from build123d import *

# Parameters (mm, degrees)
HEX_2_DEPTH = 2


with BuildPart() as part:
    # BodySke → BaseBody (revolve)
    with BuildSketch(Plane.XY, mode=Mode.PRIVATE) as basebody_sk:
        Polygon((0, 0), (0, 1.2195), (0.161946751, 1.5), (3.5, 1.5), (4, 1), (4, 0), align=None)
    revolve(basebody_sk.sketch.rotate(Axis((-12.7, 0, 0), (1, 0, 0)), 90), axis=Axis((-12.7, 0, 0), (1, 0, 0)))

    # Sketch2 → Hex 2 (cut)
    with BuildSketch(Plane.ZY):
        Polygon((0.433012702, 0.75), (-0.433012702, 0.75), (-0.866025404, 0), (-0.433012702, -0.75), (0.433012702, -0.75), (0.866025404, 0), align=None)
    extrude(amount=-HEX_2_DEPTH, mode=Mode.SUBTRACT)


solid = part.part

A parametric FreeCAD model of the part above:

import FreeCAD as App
import Part
import Sketcher

V = App.Vector
Q = App.Units.Quantity


def add_polygon(sketch, points):
    """Adds a closed chain of lines whose ends are joined by coincident constraints."""
    first, n = sketch.GeometryCount, len(points)
    for a, b in zip(points, points[1:] + points[:1]):
        sketch.addGeometry(Part.LineSegment(App.Vector(*a, 0), App.Vector(*b, 0)), False)
    for i in range(n):
        sketch.addConstraint(Sketcher.Constraint("Coincident", first + i, 2, first + (i + 1) % n, 1))

doc = App.newDocument("Part")
body = doc.addObject("PartDesign::Body", "Body")

sketch1 = body.newObject("Sketcher::SketchObject", "Sketch")
sketch1.AttachmentSupport = (doc.getObject("XY_Plane"), [""])
sketch1.MapMode = "FlatFace"
add_polygon(sketch1, [(0, 1.22), (0, 0), (4, 0), (4, 1), (3.5, 1.5), (0.16, 1.5)])
sketch1.addConstraint([
    Sketcher.Constraint("Vertical", 0),
    Sketcher.Constraint("Horizontal", 1),
    Sketcher.Constraint("Vertical", 2),
    Sketcher.Constraint("Horizontal", 4),
    Sketcher.Constraint("Coincident", 0, 2, -1, 1),
    Sketcher.Constraint("DistanceX", 1, 1, 1, 2, 4.0),
    Sketcher.Constraint("DistanceY", 2, 1, 2, 2, 1.0),
    Sketcher.Constraint("Angle", 3, Q("135 deg")),
    Sketcher.Constraint("Angle", 5, Q("-120 deg")),
    Sketcher.Constraint("DistanceX", -1, 1, 3, 2, 3.5),
    Sketcher.Constraint("DistanceY", 0, 2, 0, 1, 1.2195),
])
revolution = body.newObject("PartDesign::Revolution", "Revolution")
revolution.Profile = sketch1
revolution.ReferenceAxis = (sketch1, ["H_Axis"])
revolution.Angle = 360

sketch2 = body.newObject("Sketcher::SketchObject", "Sketch001")
sketch2.AttachmentSupport = (doc.getObject("YZ_Plane"), [""])
sketch2.MapMode = "FlatFace"
add_polygon(sketch2, [(0.8, 0.4), (0.8, -0.4), (0, -0.9), (-0.8, -0.4), (-0.8, 0.4), (0, 0.9)])
sketch2.addConstraint([
    Sketcher.Constraint("Vertical", 0),
    Sketcher.Constraint("Vertical", 3),
    Sketcher.Constraint("Symmetric", 0, 2, 3, 2, -1, 1),
    Sketcher.Constraint("Symmetric", 1, 2, 4, 2, -1, 1),
    Sketcher.Constraint("PointOnObject", 1, 2, -2),
    Sketcher.Constraint("Parallel", 2, 5),
    Sketcher.Constraint("Horizontal", 0, 2, 2, 2),
    Sketcher.Constraint("Angle", 1, Q("-150 deg")),
    Sketcher.Constraint("DistanceX", 2, 2, 0, 2, 1.5),
    Sketcher.Constraint("DistanceY", 0, 2, 0, 1, 0.866025),
])
pocket1 = body.newObject("PartDesign::Pocket", "Pocket")
pocket1.Profile = sketch2
pocket1.Length = 2
pocket1.Reversed = True

doc.recompute()
